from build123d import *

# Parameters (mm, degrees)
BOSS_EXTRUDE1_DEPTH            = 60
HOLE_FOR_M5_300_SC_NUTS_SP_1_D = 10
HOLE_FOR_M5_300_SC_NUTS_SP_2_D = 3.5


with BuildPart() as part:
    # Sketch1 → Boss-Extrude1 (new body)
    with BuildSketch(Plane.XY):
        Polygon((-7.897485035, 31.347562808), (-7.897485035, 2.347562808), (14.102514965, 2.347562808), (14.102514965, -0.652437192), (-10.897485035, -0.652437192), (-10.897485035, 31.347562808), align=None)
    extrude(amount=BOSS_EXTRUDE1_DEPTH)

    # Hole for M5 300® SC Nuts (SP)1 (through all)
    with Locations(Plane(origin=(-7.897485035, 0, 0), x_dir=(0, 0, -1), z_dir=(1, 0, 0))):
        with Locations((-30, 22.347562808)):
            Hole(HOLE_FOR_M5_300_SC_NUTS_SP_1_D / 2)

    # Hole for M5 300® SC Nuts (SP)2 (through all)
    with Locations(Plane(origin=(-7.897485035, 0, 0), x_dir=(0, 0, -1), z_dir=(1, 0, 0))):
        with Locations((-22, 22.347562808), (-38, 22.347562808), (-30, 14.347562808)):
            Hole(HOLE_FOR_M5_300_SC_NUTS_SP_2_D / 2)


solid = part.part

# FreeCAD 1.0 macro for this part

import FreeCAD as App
import Part
import Sketcher
from FreeCAD import Vector

doc = App.newDocument("Part")
body = doc.addObject("PartDesign::Body", "Body")

# Sketch on XY plane
sketch1 = doc.addObject("Sketcher::SketchObject", "Sketch")
body.addObject(sketch1)
sketch1.AttachmentSupport = (doc.XY_Plane, [""])
sketch1.MapMode = "FlatFace"
sketch1.addGeometry([
    Part.LineSegment(Vector(-7.9, 2.3, 0), Vector(-7.9, 31.3, 0)),  # 0
    Part.LineSegment(Vector(-7.9, 31.3, 0), Vector(-10.9, 31.3, 0)),  # 1
    Part.LineSegment(Vector(-10.9, 31.3, 0), Vector(-10.9, -0.7, 0)),  # 2
    Part.LineSegment(Vector(-10.9, -0.7, 0), Vector(14.1, -0.7, 0)),  # 3
    Part.LineSegment(Vector(14.1, -0.7, 0), Vector(14.1, 2.3, 0)),  # 4
    Part.LineSegment(Vector(14.1, 2.3, 0), Vector(-7.9, 2.3, 0)),  # 5
], False)
sketch1.addConstraint([
    Sketcher.Constraint("Coincident", 0, 2, 1, 1),
    Sketcher.Constraint("Coincident", 1, 2, 2, 1),
    Sketcher.Constraint("Coincident", 2, 2, 3, 1),
    Sketcher.Constraint("Coincident", 3, 2, 4, 1),
    Sketcher.Constraint("Coincident", 4, 2, 5, 1),
    Sketcher.Constraint("Coincident", 5, 2, 0, 1),
    Sketcher.Constraint("Vertical", 0),
    Sketcher.Constraint("Horizontal", 1),
    Sketcher.Constraint("Vertical", 2),
    Sketcher.Constraint("Horizontal", 3),
    Sketcher.Constraint("Vertical", 4),
    Sketcher.Constraint("Horizontal", 5),
    Sketcher.Constraint("Equal", 1, 4),
    Sketcher.Constraint("DistanceX", 1, 2, 1, 1, 3.0),
    Sketcher.Constraint("DistanceX", 3, 1, 3, 2, 25.0),
    Sketcher.Constraint("DistanceY", 0, 1, 0, 2, 29.0),
    Sketcher.Constraint("DistanceX", 0, 2, -1, 1, 7.897485),
    Sketcher.Constraint("DistanceY", -1, 1, 0, 2, 31.347563),
])
pad1 = doc.addObject("PartDesign::Pad", "Pad")
body.addObject(pad1)
pad1.Profile = sketch1
pad1.Length = 60

# Sketch on YZ plane
sketch2 = doc.addObject("Sketcher::SketchObject", "Sketch001")
body.addObject(sketch2)
sketch2.AttachmentSupport = (doc.YZ_Plane, [""])
sketch2.MapMode = "FlatFace"
sketch2.AttachmentOffset = App.Placement(Vector(0, 0, -7.897485), App.Rotation())
sketch2.addGeometry(Part.Circle(Vector(22, 30, 0), Vector(0, 0, 1), 5), False)
sketch2.addConstraint([
    Sketcher.Constraint("Diameter", 0, 10.0),
    Sketcher.Constraint("DistanceY", -1, 1, 0, 3, 30.0),
    Sketcher.Constraint("DistanceX", -1, 1, 0, 3, 22.347563),
])
doc.recompute()
hole = doc.addObject("PartDesign::Hole", "Hole")
body.addObject(hole)
hole.Profile = sketch2
hole.ThreadType = "None"
hole.Diameter = 10
hole.DepthType = "ThroughAll"

# Sketch on YZ plane
sketch3 = doc.addObject("Sketcher::SketchObject", "Sketch002")
body.addObject(sketch3)
sketch3.AttachmentSupport = (doc.YZ_Plane, [""])
sketch3.MapMode = "FlatFace"
sketch3.AttachmentOffset = App.Placement(Vector(0, 0, -7.897485), App.Rotation())
sketch3.addGeometry([
    Part.Circle(Vector(22.3, 22, 0), Vector(0, 0, 1), 1.8),
    Part.Circle(Vector(22.3, 38, 0), Vector(0, 0, 1), 1.8),
    Part.Circle(Vector(14.3, 30, 0), Vector(0, 0, 1), 1.8),
], False)
sketch3.addConstraint([
    Sketcher.Constraint("Equal", 0, 1),
    Sketcher.Constraint("Equal", 1, 2),
    Sketcher.Constraint("Vertical", 0, 3, 1, 3),
    Sketcher.Constraint("Diameter", 0, 3.5),
    Sketcher.Constraint("DistanceY", -1, 1, 0, 3, 22.0),
    Sketcher.Constraint("DistanceY", -1, 1, 1, 3, 38.0),
    Sketcher.Constraint("DistanceY", -1, 1, 2, 3, 30.0),
    Sketcher.Constraint("DistanceX", 2, 3, 0, 3, 8.0),
    Sketcher.Constraint("DistanceX", -1, 1, 0, 3, 22.347563),
])
doc.recompute()
hole2 = doc.addObject("PartDesign::Hole", "Hole001")
body.addObject(hole2)
hole2.Profile = sketch3
hole2.ThreadType = "None"
hole2.Diameter = 3.5
hole2.DepthType = "ThroughAll"

doc.recompute()
